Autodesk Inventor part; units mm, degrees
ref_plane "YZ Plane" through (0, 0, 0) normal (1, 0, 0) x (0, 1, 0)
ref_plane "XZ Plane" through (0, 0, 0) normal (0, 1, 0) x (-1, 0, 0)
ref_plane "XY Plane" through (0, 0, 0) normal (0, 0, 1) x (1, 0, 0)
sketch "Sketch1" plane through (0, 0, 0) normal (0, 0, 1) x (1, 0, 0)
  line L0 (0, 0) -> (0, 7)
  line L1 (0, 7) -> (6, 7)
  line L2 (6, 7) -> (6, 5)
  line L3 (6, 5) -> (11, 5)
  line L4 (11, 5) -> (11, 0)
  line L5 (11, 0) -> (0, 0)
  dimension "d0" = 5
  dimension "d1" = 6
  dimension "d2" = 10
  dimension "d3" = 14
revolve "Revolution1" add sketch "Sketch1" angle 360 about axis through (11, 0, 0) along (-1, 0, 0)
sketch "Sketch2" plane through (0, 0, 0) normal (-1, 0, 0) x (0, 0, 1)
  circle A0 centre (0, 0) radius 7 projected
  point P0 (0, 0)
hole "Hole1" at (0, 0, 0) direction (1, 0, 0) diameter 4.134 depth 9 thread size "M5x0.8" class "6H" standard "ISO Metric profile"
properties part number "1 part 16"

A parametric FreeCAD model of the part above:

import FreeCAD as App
import Part
import Sketcher

V = App.Vector

doc = App.newDocument("Part")
body = doc.addObject("PartDesign::Body", "Body")

# Sketch on XY plane
sketch1 = body.newObject("Sketcher::SketchObject", "Sketch")
sketch1.AttachmentSupport = (doc.getObject("XY_Plane"), [""])
sketch1.MapMode = "FlatFace"
sketch1.addGeometry(Part.LineSegment(V(0, 7, 0), V(0, 0, 0)), False)
sketch1.addGeometry(Part.LineSegment(V(0, 0, 0), V(11, 0, 0)), False)
sketch1.addGeometry(Part.LineSegment(V(11, 0, 0), V(11, 5, 0)), False)
sketch1.addGeometry(Part.LineSegment(V(11, 5, 0), V(6, 5, 0)), False)
sketch1.addGeometry(Part.LineSegment(V(6, 5, 0), V(6, 7, 0)), False)
sketch1.addGeometry(Part.LineSegment(V(6, 7, 0), V(0, 7, 0)), False)
sketch1.addConstraint(Sketcher.Constraint("Coincident", 0, 2, 1, 1))
sketch1.addConstraint(Sketcher.Constraint("Coincident", 1, 2, 2, 1))
sketch1.addConstraint(Sketcher.Constraint("Coincident", 2, 2, 3, 1))
sketch1.addConstraint(Sketcher.Constraint("Coincident", 3, 2, 4, 1))
sketch1.addConstraint(Sketcher.Constraint("Coincident", 4, 2, 5, 1))
sketch1.addConstraint(Sketcher.Constraint("Coincident", 5, 2, 0, 1))
sketch1.addConstraint(Sketcher.Constraint("Vertical", 0))
sketch1.addConstraint(Sketcher.Constraint("Horizontal", 1))
sketch1.addConstraint(Sketcher.Constraint("Vertical", 2))
sketch1.addConstraint(Sketcher.Constraint("Horizontal", 3))
sketch1.addConstraint(Sketcher.Constraint("Vertical", 4))
sketch1.addConstraint(Sketcher.Constraint("Horizontal", 5))
sketch1.addConstraint(Sketcher.Constraint("Coincident", 0, 2, -1, 1))
sketch1.addConstraint(Sketcher.Constraint("Equal", 3, 2))
sketch1.addConstraint(Sketcher.Constraint("DistanceX", 3, 2, 3, 1, 5.0))
sketch1.addConstraint(Sketcher.Constraint("DistanceX", 5, 2, 5, 1, 6.0))
sketch1.addConstraint(Sketcher.Constraint("DistanceY", 0, 2, 0, 1, 7.0))
revolution = body.newObject("PartDesign::Revolution", "Revolution")
revolution.Profile = sketch1
revolution.ReferenceAxis = (sketch1, ["H_Axis"])
revolution.Angle = 360

# Sketch on YZ plane
sketch2 = body.newObject("Sketcher::SketchObject", "Sketch001")
sketch2.AttachmentSupport = (doc.getObject("YZ_Plane"), [""])
sketch2.MapMode = "FlatFace"
sketch2.addGeometry(Part.Circle(V(0, 0, 0), V(0, 0, 1), 2.067), False)
sketch2.addConstraint(Sketcher.Constraint("Coincident", 0, 3, -1, 1))
sketch2.addConstraint(Sketcher.Constraint("Diameter", 0, 4.134))
doc.recompute()
hole = body.newObject("PartDesign::Hole", "Hole")
hole.Profile = sketch2
hole.ThreadType = "None"
hole.Diameter = 4.134
hole.DepthType = "Dimension"
hole.Depth = 9
hole.DrillPoint = "Flat"
hole.Reversed = True

doc.recompute()
